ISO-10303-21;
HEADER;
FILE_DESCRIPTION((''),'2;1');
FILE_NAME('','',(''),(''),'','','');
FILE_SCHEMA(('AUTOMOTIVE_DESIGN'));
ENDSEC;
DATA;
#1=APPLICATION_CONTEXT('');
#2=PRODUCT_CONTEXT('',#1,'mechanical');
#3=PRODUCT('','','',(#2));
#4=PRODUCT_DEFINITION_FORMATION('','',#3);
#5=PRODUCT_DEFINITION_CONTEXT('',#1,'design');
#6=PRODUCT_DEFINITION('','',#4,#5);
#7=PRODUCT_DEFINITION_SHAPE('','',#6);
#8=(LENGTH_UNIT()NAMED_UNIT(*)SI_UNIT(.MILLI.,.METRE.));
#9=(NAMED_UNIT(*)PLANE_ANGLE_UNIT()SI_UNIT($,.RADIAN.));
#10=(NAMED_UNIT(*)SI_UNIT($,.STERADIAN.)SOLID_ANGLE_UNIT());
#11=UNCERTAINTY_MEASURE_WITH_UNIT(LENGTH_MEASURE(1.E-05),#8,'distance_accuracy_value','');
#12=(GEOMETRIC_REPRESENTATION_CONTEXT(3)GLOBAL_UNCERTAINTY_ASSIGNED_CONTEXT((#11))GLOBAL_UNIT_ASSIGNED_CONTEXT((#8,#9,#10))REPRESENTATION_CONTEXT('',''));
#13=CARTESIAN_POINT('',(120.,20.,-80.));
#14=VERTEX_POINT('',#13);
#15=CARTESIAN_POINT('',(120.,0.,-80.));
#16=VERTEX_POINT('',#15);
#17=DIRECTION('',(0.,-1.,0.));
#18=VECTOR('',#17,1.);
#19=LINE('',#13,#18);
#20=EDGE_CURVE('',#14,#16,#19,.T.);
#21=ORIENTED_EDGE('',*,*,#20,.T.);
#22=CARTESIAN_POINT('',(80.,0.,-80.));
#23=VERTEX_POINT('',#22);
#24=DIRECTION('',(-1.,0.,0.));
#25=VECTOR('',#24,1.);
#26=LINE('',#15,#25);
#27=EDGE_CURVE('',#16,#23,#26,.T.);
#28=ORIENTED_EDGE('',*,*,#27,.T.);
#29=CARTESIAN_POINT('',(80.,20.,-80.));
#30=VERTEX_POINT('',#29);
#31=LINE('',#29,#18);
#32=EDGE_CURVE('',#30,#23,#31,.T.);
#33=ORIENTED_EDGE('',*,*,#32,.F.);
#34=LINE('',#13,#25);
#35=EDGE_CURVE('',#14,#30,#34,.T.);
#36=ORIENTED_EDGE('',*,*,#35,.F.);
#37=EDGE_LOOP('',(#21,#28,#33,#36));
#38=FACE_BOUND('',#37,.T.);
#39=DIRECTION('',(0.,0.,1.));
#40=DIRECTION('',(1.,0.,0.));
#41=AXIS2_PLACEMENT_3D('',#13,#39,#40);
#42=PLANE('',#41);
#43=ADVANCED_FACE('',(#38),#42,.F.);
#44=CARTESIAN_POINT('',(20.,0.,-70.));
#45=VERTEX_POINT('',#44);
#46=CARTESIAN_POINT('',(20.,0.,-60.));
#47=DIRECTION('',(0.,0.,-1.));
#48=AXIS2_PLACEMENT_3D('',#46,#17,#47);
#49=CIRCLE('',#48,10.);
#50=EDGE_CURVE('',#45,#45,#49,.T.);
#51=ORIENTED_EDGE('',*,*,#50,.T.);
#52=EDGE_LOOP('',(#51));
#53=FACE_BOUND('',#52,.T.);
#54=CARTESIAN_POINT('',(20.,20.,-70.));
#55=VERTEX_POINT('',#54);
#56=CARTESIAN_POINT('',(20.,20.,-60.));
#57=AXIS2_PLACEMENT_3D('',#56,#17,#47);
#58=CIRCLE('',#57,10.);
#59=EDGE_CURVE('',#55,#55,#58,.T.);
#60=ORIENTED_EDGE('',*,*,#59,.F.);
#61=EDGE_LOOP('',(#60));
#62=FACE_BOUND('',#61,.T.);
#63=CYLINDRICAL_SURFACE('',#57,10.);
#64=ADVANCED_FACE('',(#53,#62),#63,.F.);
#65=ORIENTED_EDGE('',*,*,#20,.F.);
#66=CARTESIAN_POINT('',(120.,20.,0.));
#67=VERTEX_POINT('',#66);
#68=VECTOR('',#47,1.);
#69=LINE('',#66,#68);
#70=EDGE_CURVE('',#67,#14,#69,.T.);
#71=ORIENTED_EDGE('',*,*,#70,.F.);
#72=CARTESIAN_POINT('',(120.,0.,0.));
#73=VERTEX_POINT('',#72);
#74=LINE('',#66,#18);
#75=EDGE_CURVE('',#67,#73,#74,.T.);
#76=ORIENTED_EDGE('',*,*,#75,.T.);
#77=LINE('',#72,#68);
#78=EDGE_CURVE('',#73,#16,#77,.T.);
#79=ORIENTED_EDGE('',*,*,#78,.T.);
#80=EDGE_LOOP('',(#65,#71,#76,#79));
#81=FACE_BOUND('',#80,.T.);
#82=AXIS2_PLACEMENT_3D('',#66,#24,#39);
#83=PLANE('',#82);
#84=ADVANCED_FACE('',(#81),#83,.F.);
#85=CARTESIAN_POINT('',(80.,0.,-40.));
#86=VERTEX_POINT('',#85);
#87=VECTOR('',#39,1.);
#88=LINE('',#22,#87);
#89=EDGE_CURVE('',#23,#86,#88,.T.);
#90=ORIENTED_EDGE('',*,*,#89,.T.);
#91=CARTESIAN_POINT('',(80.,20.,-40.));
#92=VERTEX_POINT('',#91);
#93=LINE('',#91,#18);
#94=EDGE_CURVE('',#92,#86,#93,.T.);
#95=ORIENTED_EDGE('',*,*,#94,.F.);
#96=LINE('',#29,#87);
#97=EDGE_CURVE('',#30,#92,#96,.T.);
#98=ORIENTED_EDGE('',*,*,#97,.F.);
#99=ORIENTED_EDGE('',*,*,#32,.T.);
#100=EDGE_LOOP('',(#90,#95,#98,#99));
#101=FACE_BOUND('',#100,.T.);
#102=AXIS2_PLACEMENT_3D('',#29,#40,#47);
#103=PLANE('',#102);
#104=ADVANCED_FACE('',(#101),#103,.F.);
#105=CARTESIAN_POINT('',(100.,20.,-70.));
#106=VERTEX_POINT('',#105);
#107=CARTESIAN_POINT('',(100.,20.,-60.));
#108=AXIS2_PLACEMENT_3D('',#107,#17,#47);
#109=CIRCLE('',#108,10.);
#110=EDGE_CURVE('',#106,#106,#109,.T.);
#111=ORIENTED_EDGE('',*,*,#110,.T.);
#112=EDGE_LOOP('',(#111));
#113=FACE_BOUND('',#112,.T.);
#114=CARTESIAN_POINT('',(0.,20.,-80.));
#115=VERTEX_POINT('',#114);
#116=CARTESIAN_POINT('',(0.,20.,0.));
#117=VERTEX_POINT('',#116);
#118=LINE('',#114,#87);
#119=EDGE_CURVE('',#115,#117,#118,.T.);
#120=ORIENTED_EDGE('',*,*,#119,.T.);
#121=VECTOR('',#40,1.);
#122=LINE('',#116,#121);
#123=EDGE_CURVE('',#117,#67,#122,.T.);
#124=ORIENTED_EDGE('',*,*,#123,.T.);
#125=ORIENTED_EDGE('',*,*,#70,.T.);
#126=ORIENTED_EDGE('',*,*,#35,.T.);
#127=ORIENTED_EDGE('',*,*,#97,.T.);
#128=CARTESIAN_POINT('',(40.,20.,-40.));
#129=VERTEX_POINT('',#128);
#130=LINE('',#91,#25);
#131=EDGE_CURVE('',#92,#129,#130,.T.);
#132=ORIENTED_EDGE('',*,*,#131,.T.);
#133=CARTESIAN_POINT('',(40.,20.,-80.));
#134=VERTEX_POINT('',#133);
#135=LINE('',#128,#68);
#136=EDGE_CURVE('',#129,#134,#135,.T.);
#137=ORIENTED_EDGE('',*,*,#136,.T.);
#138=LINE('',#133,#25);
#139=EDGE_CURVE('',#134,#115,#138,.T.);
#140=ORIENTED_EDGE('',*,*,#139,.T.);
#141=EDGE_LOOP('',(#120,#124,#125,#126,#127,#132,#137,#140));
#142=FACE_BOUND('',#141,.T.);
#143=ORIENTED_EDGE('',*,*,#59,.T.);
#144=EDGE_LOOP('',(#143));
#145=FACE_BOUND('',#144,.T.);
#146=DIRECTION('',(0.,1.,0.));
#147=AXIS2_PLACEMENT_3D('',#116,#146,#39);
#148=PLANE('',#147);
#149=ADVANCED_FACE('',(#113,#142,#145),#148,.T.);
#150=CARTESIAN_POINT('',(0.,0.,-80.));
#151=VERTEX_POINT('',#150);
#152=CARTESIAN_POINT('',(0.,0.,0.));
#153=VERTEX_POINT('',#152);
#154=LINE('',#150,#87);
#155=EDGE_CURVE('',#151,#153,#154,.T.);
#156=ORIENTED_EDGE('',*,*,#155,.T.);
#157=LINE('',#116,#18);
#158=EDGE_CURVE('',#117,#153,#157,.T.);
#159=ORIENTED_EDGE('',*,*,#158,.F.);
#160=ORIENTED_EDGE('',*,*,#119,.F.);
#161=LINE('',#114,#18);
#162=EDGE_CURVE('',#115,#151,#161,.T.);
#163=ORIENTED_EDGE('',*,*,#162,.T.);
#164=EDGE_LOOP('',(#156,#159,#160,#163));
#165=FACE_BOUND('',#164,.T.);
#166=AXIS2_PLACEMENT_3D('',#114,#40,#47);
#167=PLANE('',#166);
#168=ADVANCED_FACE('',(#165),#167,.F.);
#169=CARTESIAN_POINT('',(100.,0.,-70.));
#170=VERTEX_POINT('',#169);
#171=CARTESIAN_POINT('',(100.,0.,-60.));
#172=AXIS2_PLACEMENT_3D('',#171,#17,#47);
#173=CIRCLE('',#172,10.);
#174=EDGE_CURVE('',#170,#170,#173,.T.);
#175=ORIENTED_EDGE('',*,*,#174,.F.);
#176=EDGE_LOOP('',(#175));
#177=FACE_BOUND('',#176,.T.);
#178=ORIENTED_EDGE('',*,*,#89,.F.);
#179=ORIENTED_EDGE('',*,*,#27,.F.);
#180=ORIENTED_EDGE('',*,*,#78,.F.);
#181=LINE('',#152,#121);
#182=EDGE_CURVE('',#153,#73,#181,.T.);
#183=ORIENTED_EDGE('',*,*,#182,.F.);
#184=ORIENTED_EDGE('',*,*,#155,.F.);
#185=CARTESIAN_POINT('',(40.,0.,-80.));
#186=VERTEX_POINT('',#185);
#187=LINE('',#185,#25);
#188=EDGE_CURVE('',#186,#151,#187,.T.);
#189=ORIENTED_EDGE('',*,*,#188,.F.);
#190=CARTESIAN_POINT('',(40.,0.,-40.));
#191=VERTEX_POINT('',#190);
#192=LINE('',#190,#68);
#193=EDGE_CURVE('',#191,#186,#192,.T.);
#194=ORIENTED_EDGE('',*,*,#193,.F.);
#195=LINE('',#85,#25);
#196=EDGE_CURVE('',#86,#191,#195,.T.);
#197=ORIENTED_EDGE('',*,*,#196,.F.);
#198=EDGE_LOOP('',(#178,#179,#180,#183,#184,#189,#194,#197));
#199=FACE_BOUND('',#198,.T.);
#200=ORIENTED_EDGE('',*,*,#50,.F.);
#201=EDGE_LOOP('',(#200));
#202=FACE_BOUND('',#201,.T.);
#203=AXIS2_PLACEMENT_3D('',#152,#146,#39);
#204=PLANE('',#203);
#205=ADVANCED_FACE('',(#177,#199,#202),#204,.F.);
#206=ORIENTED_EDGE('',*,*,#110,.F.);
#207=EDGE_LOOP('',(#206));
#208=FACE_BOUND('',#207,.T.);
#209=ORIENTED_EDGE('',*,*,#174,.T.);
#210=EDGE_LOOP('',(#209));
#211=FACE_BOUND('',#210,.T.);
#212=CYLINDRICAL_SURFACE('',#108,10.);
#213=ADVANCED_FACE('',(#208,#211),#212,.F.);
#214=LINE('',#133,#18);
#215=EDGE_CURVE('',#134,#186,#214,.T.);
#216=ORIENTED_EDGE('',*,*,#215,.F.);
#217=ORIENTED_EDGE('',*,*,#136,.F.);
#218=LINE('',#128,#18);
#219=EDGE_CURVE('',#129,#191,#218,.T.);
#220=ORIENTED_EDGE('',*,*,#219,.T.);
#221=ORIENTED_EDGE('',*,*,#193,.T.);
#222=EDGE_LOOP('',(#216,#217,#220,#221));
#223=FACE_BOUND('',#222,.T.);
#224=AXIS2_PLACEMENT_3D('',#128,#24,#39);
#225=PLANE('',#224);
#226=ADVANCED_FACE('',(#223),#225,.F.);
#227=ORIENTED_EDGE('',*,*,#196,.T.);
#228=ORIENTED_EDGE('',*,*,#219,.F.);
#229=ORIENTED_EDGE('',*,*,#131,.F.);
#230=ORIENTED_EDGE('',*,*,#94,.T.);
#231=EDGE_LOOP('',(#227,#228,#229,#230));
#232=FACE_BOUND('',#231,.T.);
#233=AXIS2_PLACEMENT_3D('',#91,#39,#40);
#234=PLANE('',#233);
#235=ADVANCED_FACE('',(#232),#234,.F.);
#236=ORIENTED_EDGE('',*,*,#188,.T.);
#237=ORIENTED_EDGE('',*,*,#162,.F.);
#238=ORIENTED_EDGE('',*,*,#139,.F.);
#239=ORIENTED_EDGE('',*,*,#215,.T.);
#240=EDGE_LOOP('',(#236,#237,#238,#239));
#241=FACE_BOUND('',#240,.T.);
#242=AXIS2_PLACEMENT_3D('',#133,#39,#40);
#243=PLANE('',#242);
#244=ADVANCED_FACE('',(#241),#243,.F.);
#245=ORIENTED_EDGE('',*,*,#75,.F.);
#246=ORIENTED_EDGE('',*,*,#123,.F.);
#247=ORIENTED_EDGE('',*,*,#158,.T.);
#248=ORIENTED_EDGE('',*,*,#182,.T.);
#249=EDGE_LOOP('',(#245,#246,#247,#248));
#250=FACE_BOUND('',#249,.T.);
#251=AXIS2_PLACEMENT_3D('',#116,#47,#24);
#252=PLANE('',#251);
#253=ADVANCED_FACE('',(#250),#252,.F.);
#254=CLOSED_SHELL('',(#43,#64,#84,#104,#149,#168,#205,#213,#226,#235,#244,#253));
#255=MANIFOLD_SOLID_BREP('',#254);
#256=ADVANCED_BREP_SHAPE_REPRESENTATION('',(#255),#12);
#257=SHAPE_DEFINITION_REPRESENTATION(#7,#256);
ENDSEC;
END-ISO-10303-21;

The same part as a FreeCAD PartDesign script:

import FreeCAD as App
import Part
import Sketcher

V = App.Vector

doc = App.newDocument("Part")
body = doc.addObject("PartDesign::Body", "Body")

# Sketch on XZ plane
sketch1 = body.newObject("Sketcher::SketchObject", "Sketch")
sketch1.AttachmentSupport = (doc.getObject("XZ_Plane"), [""])
sketch1.MapMode = "FlatFace"
sketch1.addGeometry([
    Part.LineSegment(V(0, 0, 0), V(120, 0, 0)),  # 0
    Part.LineSegment(V(120, 0, 0), V(120, -80, 0)),  # 1
    Part.LineSegment(V(120, -80, 0), V(80, -80, 0)),  # 2
    Part.LineSegment(V(80, -80, 0), V(80, -40, 0)),  # 3
    Part.LineSegment(V(80, -40, 0), V(40, -40, 0)),  # 4
    Part.LineSegment(V(40, -40, 0), V(40, -80, 0)),  # 5
    Part.LineSegment(V(40, -80, 0), V(0, -80, 0)),  # 6
    Part.LineSegment(V(0, -80, 0), V(0, 0, 0)),  # 7
], False)
sketch1.addConstraint([
    Sketcher.Constraint("Coincident", 0, 2, 1, 1),
    Sketcher.Constraint("Coincident", 1, 2, 2, 1),
    Sketcher.Constraint("Coincident", 2, 2, 3, 1),
    Sketcher.Constraint("Coincident", 3, 2, 4, 1),
    Sketcher.Constraint("Coincident", 4, 2, 5, 1),
    Sketcher.Constraint("Coincident", 5, 2, 6, 1),
    Sketcher.Constraint("Coincident", 6, 2, 7, 1),
    Sketcher.Constraint("Coincident", 7, 2, 0, 1),
    Sketcher.Constraint("Horizontal", 0),
    Sketcher.Constraint("Vertical", 1),
    Sketcher.Constraint("Horizontal", 2),
    Sketcher.Constraint("Vertical", 3),
    Sketcher.Constraint("Horizontal", 4),
    Sketcher.Constraint("Vertical", 5),
    Sketcher.Constraint("Horizontal", 6),
    Sketcher.Constraint("Vertical", 7),
    Sketcher.Constraint("Coincident", 7, 2, -1, 1),
    Sketcher.Constraint("Horizontal", 2, 2, 5, 2),
    Sketcher.Constraint("Equal", 2, 4),
    Sketcher.Constraint("Equal", 4, 6),
    Sketcher.Constraint("Equal", 6, 3),
    Sketcher.Constraint("DistanceX", 0, 1, 0, 2, 120.0),
    Sketcher.Constraint("DistanceY", 1, 2, 1, 1, 80.0),
])
pad1 = body.newObject("PartDesign::Pad", "Pad")
pad1.Profile = sketch1
pad1.Length = 20
pad1.Reversed = True

# Sketch on XZ plane
sketch2 = body.newObject("Sketcher::SketchObject", "Sketch001")
sketch2.AttachmentSupport = (doc.getObject("XZ_Plane"), [""])
sketch2.MapMode = "FlatFace"
sketch2.addGeometry([
    Part.Circle(V(20, -60, 0), V(0, 0, 1), 10),
    Part.Circle(V(100, -60, 0), V(0, 0, 1), 10),
], False)
sketch2.addConstraint([
    Sketcher.Constraint("Equal", 0, 1),
    Sketcher.Constraint("Horizontal", 0, 3, 1, 3),
    Sketcher.Constraint("Diameter", 0, 20.0),
    Sketcher.Constraint("DistanceX", -1, 1, 0, 3, 20.0),
    Sketcher.Constraint("DistanceY", 0, 3, -1, 1, 60.0),
    Sketcher.Constraint("DistanceX", -1, 1, 1, 3, 100.0),
])
pocket1 = body.newObject("PartDesign::Pocket", "Pocket")
pocket1.Profile = sketch2
pocket1.Length = 20

doc.recompute()
